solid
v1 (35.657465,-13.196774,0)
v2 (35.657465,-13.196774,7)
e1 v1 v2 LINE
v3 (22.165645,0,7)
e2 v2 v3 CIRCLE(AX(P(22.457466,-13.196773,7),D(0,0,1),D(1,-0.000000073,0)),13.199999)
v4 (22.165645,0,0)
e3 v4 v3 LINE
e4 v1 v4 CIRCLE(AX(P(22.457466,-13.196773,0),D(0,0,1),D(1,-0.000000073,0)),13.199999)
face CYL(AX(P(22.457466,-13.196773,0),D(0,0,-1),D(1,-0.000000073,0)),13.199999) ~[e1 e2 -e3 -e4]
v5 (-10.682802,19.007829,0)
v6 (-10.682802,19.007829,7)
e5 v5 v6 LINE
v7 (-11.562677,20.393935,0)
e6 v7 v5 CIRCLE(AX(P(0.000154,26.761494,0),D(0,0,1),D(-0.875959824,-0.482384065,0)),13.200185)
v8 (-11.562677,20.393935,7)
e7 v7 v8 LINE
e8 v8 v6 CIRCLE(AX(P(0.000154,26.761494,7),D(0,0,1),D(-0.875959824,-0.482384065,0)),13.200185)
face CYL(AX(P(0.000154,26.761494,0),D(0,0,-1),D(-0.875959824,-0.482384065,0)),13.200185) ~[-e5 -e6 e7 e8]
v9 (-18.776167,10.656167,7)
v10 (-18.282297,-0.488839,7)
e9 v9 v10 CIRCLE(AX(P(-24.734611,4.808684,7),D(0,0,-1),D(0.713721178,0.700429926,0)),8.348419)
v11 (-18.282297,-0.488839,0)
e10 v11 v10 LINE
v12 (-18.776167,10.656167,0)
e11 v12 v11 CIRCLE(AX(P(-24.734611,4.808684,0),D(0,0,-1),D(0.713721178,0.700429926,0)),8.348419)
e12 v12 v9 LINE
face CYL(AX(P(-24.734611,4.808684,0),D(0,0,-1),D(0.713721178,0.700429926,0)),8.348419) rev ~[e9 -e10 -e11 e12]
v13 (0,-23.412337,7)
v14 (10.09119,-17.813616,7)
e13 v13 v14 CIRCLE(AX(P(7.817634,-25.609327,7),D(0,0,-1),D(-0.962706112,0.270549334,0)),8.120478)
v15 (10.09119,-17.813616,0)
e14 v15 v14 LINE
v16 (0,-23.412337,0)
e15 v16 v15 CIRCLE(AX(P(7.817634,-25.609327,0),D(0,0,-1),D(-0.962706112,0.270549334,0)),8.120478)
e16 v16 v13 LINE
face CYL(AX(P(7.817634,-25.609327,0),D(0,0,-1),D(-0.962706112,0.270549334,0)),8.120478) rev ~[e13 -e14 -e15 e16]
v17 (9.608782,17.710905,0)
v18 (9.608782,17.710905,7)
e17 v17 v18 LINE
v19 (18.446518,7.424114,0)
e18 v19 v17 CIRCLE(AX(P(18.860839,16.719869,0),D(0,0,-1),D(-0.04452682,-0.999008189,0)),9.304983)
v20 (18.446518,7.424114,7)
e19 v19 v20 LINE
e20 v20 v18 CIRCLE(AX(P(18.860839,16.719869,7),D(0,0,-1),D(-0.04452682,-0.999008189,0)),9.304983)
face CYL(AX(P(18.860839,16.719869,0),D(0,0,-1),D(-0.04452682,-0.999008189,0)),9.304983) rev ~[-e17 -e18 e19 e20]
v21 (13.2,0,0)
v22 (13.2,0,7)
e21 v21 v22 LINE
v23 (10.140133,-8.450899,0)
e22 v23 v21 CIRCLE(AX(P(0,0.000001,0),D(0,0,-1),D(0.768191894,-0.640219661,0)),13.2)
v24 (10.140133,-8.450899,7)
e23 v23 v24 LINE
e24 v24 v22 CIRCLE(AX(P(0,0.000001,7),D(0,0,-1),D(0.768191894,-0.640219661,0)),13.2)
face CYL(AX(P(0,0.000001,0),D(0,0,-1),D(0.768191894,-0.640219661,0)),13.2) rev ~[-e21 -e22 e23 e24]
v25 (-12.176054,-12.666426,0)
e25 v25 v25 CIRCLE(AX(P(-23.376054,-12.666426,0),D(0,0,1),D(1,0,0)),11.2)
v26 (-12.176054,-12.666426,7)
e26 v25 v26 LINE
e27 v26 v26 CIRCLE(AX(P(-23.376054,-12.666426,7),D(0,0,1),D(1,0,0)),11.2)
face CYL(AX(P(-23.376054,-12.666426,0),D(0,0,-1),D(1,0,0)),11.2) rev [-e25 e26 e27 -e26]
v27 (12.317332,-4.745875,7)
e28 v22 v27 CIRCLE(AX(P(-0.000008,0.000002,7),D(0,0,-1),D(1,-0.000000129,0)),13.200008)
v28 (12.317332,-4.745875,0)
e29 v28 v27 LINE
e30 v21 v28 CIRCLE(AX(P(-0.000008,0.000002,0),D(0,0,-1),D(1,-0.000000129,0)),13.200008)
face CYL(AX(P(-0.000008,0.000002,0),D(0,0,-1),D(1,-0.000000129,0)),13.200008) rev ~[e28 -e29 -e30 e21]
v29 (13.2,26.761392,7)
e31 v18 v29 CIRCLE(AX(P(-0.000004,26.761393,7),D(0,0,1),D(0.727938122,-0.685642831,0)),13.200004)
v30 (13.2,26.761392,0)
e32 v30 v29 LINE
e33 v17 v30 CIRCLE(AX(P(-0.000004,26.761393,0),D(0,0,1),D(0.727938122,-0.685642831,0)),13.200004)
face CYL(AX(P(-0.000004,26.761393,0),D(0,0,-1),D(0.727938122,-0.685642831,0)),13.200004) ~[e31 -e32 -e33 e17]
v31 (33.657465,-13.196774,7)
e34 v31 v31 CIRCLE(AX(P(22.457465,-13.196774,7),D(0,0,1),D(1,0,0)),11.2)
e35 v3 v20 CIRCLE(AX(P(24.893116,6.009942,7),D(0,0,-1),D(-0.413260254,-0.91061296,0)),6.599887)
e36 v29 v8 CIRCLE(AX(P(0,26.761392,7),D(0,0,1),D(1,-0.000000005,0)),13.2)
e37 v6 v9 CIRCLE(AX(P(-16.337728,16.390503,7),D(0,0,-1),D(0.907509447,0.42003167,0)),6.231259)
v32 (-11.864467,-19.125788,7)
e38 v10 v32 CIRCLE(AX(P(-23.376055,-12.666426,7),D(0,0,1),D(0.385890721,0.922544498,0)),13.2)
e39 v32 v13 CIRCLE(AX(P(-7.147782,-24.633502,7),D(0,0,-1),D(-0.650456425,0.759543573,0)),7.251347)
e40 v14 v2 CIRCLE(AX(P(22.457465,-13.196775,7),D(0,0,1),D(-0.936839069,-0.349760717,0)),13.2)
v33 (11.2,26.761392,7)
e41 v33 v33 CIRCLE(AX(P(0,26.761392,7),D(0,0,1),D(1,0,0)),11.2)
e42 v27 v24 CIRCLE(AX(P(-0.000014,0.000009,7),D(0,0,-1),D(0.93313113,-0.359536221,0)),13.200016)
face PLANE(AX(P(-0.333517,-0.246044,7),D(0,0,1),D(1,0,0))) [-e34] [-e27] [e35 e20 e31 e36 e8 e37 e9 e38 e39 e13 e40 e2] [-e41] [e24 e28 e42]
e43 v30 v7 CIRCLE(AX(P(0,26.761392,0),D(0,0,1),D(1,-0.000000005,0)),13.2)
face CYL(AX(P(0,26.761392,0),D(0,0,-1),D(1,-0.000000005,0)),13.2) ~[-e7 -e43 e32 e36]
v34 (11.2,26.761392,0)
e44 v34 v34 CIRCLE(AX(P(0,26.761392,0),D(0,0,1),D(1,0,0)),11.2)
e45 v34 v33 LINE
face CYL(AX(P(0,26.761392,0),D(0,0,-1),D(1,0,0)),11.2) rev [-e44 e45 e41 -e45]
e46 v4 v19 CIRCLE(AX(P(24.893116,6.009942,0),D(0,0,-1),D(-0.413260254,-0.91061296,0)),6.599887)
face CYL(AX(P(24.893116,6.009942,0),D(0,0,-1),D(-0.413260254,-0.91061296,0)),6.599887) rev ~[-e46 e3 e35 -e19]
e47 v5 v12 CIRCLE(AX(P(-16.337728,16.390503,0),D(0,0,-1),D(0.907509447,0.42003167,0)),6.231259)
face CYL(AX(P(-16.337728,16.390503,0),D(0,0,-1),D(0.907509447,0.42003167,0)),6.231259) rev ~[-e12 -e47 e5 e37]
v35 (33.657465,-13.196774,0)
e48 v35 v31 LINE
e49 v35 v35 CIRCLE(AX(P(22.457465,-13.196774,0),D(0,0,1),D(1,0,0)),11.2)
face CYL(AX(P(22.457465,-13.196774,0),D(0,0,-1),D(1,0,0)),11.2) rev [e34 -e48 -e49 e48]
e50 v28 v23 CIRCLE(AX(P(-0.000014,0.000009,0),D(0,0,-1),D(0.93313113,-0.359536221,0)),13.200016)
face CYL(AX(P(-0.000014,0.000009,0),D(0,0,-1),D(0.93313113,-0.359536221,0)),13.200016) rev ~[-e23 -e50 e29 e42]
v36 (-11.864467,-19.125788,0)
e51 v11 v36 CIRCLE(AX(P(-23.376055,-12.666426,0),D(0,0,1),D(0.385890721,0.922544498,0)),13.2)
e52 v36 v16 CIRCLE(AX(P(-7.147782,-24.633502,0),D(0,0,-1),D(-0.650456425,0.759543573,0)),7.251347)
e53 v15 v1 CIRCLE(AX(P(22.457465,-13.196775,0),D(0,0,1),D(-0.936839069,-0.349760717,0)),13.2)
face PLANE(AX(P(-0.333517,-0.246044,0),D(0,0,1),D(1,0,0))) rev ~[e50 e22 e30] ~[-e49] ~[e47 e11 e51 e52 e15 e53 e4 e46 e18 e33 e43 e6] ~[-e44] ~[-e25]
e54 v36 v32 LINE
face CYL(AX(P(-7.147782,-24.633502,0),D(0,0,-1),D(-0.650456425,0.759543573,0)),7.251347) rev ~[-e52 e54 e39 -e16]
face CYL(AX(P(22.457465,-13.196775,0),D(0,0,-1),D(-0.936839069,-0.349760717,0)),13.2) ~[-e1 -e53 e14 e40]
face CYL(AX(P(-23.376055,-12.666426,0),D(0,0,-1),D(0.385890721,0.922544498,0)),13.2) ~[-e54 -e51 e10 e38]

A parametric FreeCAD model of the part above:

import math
import FreeCAD as App
import Part
import Sketcher
from FreeCAD import Vector
Q = App.Units.Quantity

doc = App.newDocument("Part")
body = doc.addObject("PartDesign::Body", "Body")

# Sketch on XY plane
sketch1 = body.newObject("Sketcher::SketchObject", "Sketch")
sketch1.AttachmentSupport = (doc.getObject("XY_Plane"), [""])
sketch1.MapMode = "FlatFace"
sketch1.addGeometry([
    Part.ArcOfCircle(Part.Circle(Vector(24.9, 6, 0), Vector(0, 0, 1), 6.6), math.radians(168), math.radians(246)),  # 0
    Part.ArcOfCircle(Part.Circle(Vector(18.9, 16.7, 0), Vector(0, 0, 1), 9.3), math.radians(174), math.radians(267)),  # 1
    Part.ArcOfCircle(Part.Circle(Vector(0, 26.8, 0), Vector(0, 0, 1), 13.2), math.radians(-43), math.radians(0)),  # 2
    Part.ArcOfCircle(Part.Circle(Vector(0, 26.8, 0), Vector(0, 0, 1), 13.2), math.radians(0), math.radians(209)),  # 3
    Part.ArcOfCircle(Part.Circle(Vector(0, 26.8, 0), Vector(0, 0, 1), 13.2), math.radians(-151.16), math.radians(-144.03)),  # 4
    Part.ArcOfCircle(Part.Circle(Vector(-16.3, 16.4, 0), Vector(0, 0, 1), 6.2), math.radians(-113), math.radians(25)),  # 5
    Part.ArcOfCircle(Part.Circle(Vector(-24.7, 4.8, 0), Vector(0, 0, 1), 8.3), math.radians(-39), math.radians(44)),  # 6
    Part.ArcOfCircle(Part.Circle(Vector(-23.4, -12.7, 0), Vector(0, 0, 1), 13.2), math.radians(67), math.radians(331)),  # 7
    Part.ArcOfCircle(Part.Circle(Vector(-7.1, -24.6, 0), Vector(0, 0, 1), 7.3), math.radians(10), math.radians(131)),  # 8
    Part.ArcOfCircle(Part.Circle(Vector(7.8, -25.6, 0), Vector(0, 0, 1), 8.1), math.radians(74), math.radians(164)),  # 9
    Part.ArcOfCircle(Part.Circle(Vector(22.5, -13.2, 0), Vector(0, 0, 1), 13.2), math.radians(-160), math.radians(0)),  # 10
    Part.ArcOfCircle(Part.Circle(Vector(22.5, -13.2, 0), Vector(0, 0, 1), 13.2), math.radians(0), math.radians(91)),  # 11
    Part.Circle(Vector(-23.4, -12.7, 0), Vector(0, 0, 1), 11.2),  # 12
    Part.Circle(Vector(22.5, -13.2, 0), Vector(0, 0, 1), 11.2),  # 13
    Part.ArcOfCircle(Part.Circle(Vector(0, 0, 0), Vector(0, 0, 1), 13.2), math.radians(0), math.radians(320)),  # 14
    Part.ArcOfCircle(Part.Circle(Vector(0, 0, 0), Vector(0, 0, 1), 13.2), math.radians(-21), math.radians(0)),  # 15
    Part.ArcOfCircle(Part.Circle(Vector(0, 0, 0), Vector(0, 0, 1), 13.2), math.radians(-39.81), math.radians(-21.07)),  # 16
    Part.Circle(Vector(0, 26.8, 0), Vector(0, 0, 1), 11.2),  # 17
], False)
sketch1.addConstraint([
    Sketcher.Constraint("Coincident", 0, 1, 1, 2),
    Sketcher.Constraint("Coincident", 1, 1, 2, 1),
    Sketcher.Constraint("Tangent", 2, 2, 3, 1),
    Sketcher.Constraint("Tangent", 3, 2, 4, 1),
    Sketcher.Constraint("Coincident", 4, 2, 5, 2),
    Sketcher.Constraint("Coincident", 5, 1, 6, 2),
    Sketcher.Constraint("Coincident", 6, 1, 7, 1),
    Sketcher.Constraint("Coincident", 7, 2, 8, 2),
    Sketcher.Constraint("Coincident", 8, 1, 9, 2),
    Sketcher.Constraint("Coincident", 9, 1, 10, 1),
    Sketcher.Constraint("Tangent", 10, 2, 11, 1),
    Sketcher.Constraint("Coincident", 11, 2, 0, 2),
    Sketcher.Constraint("Tangent", 14, 1, 15, 2),
    Sketcher.Constraint("Tangent", 15, 1, 16, 2),
    Sketcher.Constraint("Tangent", 16, 1, 14, 2),
    Sketcher.Constraint("Coincident", 14, 3, -1, 1),
    Sketcher.Constraint("Coincident", 12, 3, 7, 3),
    Sketcher.Constraint("Coincident", 13, 3, 10, 3),
    Sketcher.Constraint("Coincident", 17, 3, 2, 3),
    Sketcher.Constraint("Equal", 3, 7),
    Sketcher.Constraint("Equal", 7, 10),
    Sketcher.Constraint("Equal", 10, 11),
    Sketcher.Constraint("Equal", 12, 13),
    Sketcher.Constraint("Equal", 11, 14),
    Sketcher.Constraint("Equal", 13, 17),
    Sketcher.Constraint("PointOnObject", 3, 3, -2),
    Sketcher.Constraint("PointOnObject", 17, 3, -2),
    Sketcher.Constraint("PointOnObject", 8, 1, -2),
    Sketcher.Constraint("PointOnObject", 11, 2, -1),
    Sketcher.Constraint("PointOnObject", 14, 1, -1),
    Sketcher.Constraint("Horizontal", 17, 3, 2, 2),
    Sketcher.Constraint("Horizontal", 13, 3, 10, 2),
    Sketcher.Constraint("Diameter", 12, Q("22.4 mm")),
    Sketcher.Constraint("Radius", 3, Q("13.2 mm")),
    Sketcher.Constraint("Radius", 5, Q("6.231259 mm")),
    Sketcher.Constraint("Radius", 6, Q("8.348419 mm")),
    Sketcher.Constraint("Radius", 9, Q("8.120478 mm")),
    Sketcher.Constraint("Radius", 0, Q("6.599887 mm")),
    Sketcher.Constraint("Radius", 1, Q("9.304983 mm")),
    Sketcher.Constraint("Radius", 4, Q("13.200185 mm")),
    Sketcher.Constraint("Radius", 8, Q("7.251347 mm")),
    Sketcher.Constraint("DistanceY", 8, 3, -1, 1, Q("24.633502 mm")),
    Sketcher.Constraint("DistanceX", 4, 2, -1, 1, Q("10.682802 mm")),
    Sketcher.Constraint("DistanceY", 16, 1, -1, 1, Q("8.450899 mm")),
    Sketcher.Constraint("DistanceY", 9, 3, 7, 3, Q("12.942901 mm")),
    Sketcher.Constraint("DistanceY", 15, 3, 5, 3, Q("16.390501 mm")),
    Sketcher.Constraint("DistanceX", 7, 2, 9, 3, Q("19.682101 mm")),
    Sketcher.Constraint("DistanceY", 13, 3, 15, 1, Q("8.450899 mm")),
    Sketcher.Constraint("DistanceX", -1, 1, 1, 3, Q("18.860839 mm")),
    Sketcher.Constraint("DistanceY", -1, 1, 1, 3, Q("16.719869 mm")),
    Sketcher.Constraint("DistanceX", 5, 3, -1, 1, Q("16.337728 mm")),
    Sketcher.Constraint("DistanceX", 6, 3, -1, 1, Q("24.734611 mm")),
    Sketcher.Constraint("DistanceX", 8, 3, -1, 1, Q("7.147782 mm")),
    Sketcher.Constraint("DistanceY", 6, 1, -1, 1, Q("0.488839 mm")),
    Sketcher.Constraint("DistanceX", -1, 1, 9, 1, Q("10.09119 mm")),
    Sketcher.Constraint("DistanceX", 2, 3, 0, 3, Q("24.89312 mm")),
    Sketcher.Constraint("DistanceY", 0, 3, 2, 3, Q("20.751451 mm")),
    Sketcher.Constraint("DistanceY", 6, 3, 5, 3, Q("11.581819 mm")),
    Sketcher.Constraint("DistanceX", 5, 3, 3, 2, Q("4.775051 mm")),
])
pad1 = body.newObject("PartDesign::Pad", "Pad")
pad1.Profile = sketch1
pad1.Length = 7

doc.recompute()
